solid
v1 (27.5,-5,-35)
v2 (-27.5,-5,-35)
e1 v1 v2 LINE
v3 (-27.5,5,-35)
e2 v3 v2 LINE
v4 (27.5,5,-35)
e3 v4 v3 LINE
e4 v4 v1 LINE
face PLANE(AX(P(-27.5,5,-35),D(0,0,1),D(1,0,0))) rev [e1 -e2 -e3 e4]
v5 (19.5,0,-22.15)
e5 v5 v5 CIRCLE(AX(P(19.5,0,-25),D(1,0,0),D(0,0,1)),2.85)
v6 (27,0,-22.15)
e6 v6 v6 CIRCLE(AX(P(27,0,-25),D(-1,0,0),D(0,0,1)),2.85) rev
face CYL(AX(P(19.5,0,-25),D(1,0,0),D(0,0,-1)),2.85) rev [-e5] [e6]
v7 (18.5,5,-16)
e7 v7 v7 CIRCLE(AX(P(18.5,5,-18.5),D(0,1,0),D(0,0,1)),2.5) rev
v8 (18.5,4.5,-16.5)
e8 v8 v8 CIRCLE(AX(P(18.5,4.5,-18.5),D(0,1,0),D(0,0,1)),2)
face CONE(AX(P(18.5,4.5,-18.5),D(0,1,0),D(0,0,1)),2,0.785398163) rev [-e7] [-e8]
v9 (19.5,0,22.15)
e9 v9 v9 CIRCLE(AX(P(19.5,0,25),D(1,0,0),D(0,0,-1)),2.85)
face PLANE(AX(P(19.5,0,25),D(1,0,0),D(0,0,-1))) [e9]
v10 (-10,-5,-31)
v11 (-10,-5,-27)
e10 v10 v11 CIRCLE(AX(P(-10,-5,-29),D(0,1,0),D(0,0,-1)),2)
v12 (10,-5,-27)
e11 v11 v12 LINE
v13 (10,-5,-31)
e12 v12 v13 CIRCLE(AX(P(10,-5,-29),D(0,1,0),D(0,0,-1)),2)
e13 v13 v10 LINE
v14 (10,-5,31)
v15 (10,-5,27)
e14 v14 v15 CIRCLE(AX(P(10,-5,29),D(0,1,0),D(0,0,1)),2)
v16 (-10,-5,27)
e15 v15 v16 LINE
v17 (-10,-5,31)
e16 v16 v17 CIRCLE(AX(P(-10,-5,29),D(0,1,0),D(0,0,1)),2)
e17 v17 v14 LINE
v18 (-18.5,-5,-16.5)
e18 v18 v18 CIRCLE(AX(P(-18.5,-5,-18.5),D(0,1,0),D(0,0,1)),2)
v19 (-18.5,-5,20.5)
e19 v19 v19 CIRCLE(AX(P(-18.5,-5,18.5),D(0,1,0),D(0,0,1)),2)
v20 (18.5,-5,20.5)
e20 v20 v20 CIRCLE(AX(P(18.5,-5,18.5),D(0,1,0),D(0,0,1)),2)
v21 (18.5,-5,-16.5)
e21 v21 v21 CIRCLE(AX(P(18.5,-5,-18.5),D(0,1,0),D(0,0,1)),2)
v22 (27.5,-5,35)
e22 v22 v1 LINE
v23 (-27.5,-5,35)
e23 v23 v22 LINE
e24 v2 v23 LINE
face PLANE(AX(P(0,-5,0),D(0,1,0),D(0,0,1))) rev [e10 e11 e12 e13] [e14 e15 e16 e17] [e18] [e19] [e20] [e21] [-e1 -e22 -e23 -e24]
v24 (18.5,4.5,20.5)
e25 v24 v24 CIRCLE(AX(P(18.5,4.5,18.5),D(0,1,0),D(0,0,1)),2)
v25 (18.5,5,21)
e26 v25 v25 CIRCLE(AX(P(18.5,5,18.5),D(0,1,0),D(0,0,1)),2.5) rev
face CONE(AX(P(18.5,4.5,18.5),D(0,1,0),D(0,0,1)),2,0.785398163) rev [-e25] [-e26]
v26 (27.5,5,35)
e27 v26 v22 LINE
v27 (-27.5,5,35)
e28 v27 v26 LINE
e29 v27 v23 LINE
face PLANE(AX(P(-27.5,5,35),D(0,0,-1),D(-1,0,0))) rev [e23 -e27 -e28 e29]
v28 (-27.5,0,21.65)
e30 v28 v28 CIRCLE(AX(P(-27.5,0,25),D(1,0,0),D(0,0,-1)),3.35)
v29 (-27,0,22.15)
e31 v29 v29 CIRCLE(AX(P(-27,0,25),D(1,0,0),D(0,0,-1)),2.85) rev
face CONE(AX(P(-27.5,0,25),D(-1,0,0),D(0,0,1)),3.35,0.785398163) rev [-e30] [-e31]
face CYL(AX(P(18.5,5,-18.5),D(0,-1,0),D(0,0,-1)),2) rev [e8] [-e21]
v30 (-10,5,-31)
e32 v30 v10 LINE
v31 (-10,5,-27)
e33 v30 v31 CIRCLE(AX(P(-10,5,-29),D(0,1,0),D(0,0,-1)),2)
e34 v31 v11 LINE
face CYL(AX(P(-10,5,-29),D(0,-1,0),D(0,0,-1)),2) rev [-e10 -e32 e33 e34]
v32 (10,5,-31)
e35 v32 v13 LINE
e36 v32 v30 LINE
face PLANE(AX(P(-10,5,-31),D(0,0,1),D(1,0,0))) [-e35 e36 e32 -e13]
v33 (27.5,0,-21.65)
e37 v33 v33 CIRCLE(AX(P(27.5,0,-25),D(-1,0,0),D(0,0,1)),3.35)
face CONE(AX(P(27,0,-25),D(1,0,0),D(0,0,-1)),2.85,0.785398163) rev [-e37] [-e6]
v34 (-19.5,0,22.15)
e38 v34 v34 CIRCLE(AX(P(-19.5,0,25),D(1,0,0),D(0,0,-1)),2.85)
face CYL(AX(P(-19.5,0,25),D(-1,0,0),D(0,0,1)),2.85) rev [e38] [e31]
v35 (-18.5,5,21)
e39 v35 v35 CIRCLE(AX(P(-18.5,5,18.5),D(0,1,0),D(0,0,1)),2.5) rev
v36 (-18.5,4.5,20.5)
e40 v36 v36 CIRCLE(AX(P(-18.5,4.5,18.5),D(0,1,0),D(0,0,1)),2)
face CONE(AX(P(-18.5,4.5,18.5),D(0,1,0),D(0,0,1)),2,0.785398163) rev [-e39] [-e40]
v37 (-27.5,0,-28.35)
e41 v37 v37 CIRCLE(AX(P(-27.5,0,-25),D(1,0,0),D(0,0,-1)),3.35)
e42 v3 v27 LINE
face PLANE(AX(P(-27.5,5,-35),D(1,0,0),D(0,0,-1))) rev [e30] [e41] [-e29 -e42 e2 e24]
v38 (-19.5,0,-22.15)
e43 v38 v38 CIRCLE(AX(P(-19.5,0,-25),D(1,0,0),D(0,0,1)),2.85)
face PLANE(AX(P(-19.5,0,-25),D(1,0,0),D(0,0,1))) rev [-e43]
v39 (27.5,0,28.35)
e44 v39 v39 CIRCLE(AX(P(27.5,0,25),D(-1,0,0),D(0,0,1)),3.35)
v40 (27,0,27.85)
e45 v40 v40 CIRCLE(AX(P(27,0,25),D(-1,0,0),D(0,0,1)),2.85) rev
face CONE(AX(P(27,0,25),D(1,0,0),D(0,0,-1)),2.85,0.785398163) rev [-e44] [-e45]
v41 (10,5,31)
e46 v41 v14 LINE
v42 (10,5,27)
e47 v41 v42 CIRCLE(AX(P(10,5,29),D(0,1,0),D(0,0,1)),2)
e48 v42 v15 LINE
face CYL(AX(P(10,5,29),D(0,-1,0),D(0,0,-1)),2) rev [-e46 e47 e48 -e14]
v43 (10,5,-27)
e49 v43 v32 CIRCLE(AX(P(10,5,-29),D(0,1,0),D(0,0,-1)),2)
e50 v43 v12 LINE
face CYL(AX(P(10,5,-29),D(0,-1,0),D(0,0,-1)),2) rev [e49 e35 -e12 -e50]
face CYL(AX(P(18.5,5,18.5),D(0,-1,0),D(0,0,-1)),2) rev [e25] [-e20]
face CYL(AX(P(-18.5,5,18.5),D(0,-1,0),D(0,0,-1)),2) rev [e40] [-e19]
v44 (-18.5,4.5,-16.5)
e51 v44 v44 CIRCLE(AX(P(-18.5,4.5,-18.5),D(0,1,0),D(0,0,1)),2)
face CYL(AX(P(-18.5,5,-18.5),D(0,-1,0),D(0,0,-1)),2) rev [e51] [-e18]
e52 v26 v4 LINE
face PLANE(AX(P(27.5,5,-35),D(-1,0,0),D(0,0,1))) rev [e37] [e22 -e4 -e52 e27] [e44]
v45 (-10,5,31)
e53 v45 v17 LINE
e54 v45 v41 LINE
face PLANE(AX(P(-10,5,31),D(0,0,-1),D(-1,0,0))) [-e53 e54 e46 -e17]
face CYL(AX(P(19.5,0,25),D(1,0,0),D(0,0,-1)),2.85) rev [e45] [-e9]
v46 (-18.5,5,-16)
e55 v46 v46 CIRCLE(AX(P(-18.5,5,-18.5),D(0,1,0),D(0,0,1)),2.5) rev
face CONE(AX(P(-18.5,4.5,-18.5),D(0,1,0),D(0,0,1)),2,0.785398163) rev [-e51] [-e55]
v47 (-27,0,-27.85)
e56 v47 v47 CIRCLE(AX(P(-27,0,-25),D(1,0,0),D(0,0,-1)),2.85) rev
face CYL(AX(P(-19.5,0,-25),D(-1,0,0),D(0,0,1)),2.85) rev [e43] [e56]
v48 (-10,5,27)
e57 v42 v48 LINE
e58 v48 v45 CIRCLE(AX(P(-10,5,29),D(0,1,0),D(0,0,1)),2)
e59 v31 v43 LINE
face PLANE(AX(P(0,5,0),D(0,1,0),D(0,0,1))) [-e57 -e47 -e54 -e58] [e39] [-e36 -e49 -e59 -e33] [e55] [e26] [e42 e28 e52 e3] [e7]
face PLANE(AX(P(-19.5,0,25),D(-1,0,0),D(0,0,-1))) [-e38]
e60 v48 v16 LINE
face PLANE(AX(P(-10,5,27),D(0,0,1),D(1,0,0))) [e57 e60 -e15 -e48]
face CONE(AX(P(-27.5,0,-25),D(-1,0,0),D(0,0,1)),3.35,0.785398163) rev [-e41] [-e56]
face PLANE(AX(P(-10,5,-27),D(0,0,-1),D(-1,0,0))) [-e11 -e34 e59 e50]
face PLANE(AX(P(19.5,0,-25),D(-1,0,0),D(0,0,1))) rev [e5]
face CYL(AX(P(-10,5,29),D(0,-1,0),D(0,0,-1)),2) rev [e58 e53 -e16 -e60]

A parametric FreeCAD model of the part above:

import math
import FreeCAD as App
import Part
import Sketcher
from FreeCAD import Vector


def edges_at(feature, points):
    """Names of the edges that pass closest to the given points."""
    edges = feature.Shape.Edges
    near = lambda p: min(range(len(edges)), key=lambda i: edges[i].distToShape(Part.Vertex(*p))[0])
    return sorted({f"Edge{near(p) + 1}" for p in points})


def add_polygon(sketch, points):
    """Adds a closed chain of lines whose ends are joined by coincident constraints."""
    first, n = sketch.GeometryCount, len(points)
    for a, b in zip(points, points[1:] + points[:1]):
        sketch.addGeometry(Part.LineSegment(App.Vector(*a, 0), App.Vector(*b, 0)), False)
    for i in range(n):
        sketch.addConstraint(Sketcher.Constraint("Coincident", first + i, 2, first + (i + 1) % n, 1))

doc = App.newDocument("Part")
body = doc.addObject("PartDesign::Body", "Body")

sketch1 = doc.addObject("Sketcher::SketchObject", "Sketch")
body.addObject(sketch1)
sketch1.AttachmentSupport = (doc.XZ_Plane, [""])
sketch1.MapMode = "FlatFace"
add_polygon(sketch1, [(-27.5, -35), (-27.5, 35), (27.5, 35), (27.5, -35)])
sketch1.addGeometry(Part.Circle(Vector(-18.5, 18.5, 0), Vector(0, 0, 1), 2), False)
sketch1.addGeometry(Part.LineSegment(Vector(10, 31, 0), Vector(-10, 31, 0)), False)
sketch1.addGeometry(Part.ArcOfCircle(Part.Circle(Vector(-10, 29, 0), Vector(0, 0, 1), 2), math.radians(90), math.radians(270)), False)
sketch1.addGeometry(Part.LineSegment(Vector(-10, 27, 0), Vector(10, 27, 0)), False)
sketch1.addGeometry(Part.ArcOfCircle(Part.Circle(Vector(10, 29, 0), Vector(0, 0, 1), 2), math.radians(-90), math.radians(90)), False)
sketch1.addGeometry(Part.Circle(Vector(18.5, 18.5, 0), Vector(0, 0, 1), 2), False)
sketch1.addGeometry(Part.Circle(Vector(-18.5, -18.5, 0), Vector(0, 0, 1), 2), False)
sketch1.addGeometry(Part.LineSegment(Vector(10, -27, 0), Vector(-10, -27, 0)), False)
sketch1.addGeometry(Part.ArcOfCircle(Part.Circle(Vector(-10, -29, 0), Vector(0, 0, 1), 2), math.radians(90), math.radians(270)), False)
sketch1.addGeometry(Part.LineSegment(Vector(-10, -31, 0), Vector(10, -31, 0)), False)
sketch1.addGeometry(Part.ArcOfCircle(Part.Circle(Vector(10, -29, 0), Vector(0, 0, 1), 2), math.radians(-90), math.radians(90)), False)
sketch1.addGeometry(Part.Circle(Vector(18.5, -18.5, 0), Vector(0, 0, 1), 2), False)
sketch1.addConstraint(Sketcher.Constraint("Tangent", 5, 2, 6, 1))
sketch1.addConstraint(Sketcher.Constraint("Tangent", 6, 2, 7, 1))
sketch1.addConstraint(Sketcher.Constraint("Tangent", 7, 2, 8, 1))
sketch1.addConstraint(Sketcher.Constraint("Tangent", 8, 2, 5, 1))
sketch1.addConstraint(Sketcher.Constraint("Tangent", 11, 2, 12, 1))
sketch1.addConstraint(Sketcher.Constraint("Tangent", 12, 2, 13, 1))
sketch1.addConstraint(Sketcher.Constraint("Tangent", 13, 2, 14, 1))
sketch1.addConstraint(Sketcher.Constraint("Tangent", 14, 2, 11, 1))
sketch1.addConstraint(Sketcher.Constraint("Vertical", 0))
sketch1.addConstraint(Sketcher.Constraint("Horizontal", 1))
sketch1.addConstraint(Sketcher.Constraint("Vertical", 2))
sketch1.addConstraint(Sketcher.Constraint("Horizontal", 3))
sketch1.addConstraint(Sketcher.Constraint("Horizontal", 5))
sketch1.addConstraint(Sketcher.Constraint("Horizontal", 7))
sketch1.addConstraint(Sketcher.Constraint("Horizontal", 11))
sketch1.addConstraint(Sketcher.Constraint("Horizontal", 13))
sketch1.addConstraint(Sketcher.Constraint("Equal", 4, 6))
sketch1.addConstraint(Sketcher.Constraint("Equal", 8, 9))
sketch1.addConstraint(Sketcher.Constraint("Equal", 9, 10))
sketch1.addConstraint(Sketcher.Constraint("Equal", 10, 12))
sketch1.addConstraint(Sketcher.Constraint("Equal", 14, 15))
sketch1.addConstraint(Sketcher.Constraint("Symmetric", 9, 3, 10, 3, -1, 1))
sketch1.addConstraint(Sketcher.Constraint("Symmetric", 8, 3, 12, 3, -1, 1))
sketch1.addConstraint(Sketcher.Constraint("Symmetric", 4, 3, 15, 3, -1, 1))
sketch1.addConstraint(Sketcher.Constraint("Symmetric", 0, 2, 2, 2, -1, 1))
sketch1.addConstraint(Sketcher.Constraint("Symmetric", 4, 3, 9, 3, -2))
sketch1.addConstraint(Sketcher.Constraint("Vertical", 6, 3, 12, 3))
sketch1.addConstraint(Sketcher.Constraint("Vertical", 8, 3, 14, 3))
sketch1.addConstraint(Sketcher.Constraint("Diameter", 4, 4.0))
sketch1.addConstraint(Sketcher.Constraint("DistanceX", 1, 1, 1, 2, 55.0))
sketch1.addConstraint(Sketcher.Constraint("DistanceX", 5, 2, 5, 1, 20.0))
sketch1.addConstraint(Sketcher.Constraint("DistanceY", 0, 1, 0, 2, 70.0))
sketch1.addConstraint(Sketcher.Constraint("DistanceY", -1, 1, 6, 3, 29.0))
sketch1.addConstraint(Sketcher.Constraint("DistanceX", 4, 3, 9, 3, 37.0))
sketch1.addConstraint(Sketcher.Constraint("DistanceY", 10, 3, 4, 3, 37.0))
pad1 = doc.addObject("PartDesign::Pad", "Pad")
body.addObject(pad1)
pad1.Profile = sketch1
pad1.Length = 10
pad1.Midplane = True

sketch2 = doc.addObject("Sketcher::SketchObject", "Sketch001")
body.addObject(sketch2)
sketch2.AttachmentSupport = (doc.YZ_Plane, [""])
sketch2.MapMode = "FlatFace"
sketch2.AttachmentOffset = App.Placement(Vector(0, 0, 27.5), App.Rotation())
sketch2.addGeometry(Part.Circle(Vector(0, 25, 0), Vector(0, 0, 1), 2.9), False)
sketch2.addGeometry(Part.Circle(Vector(0, -25, 0), Vector(0, 0, 1), 2.9), False)
sketch2.addConstraint(Sketcher.Constraint("Equal", 0, 1))
sketch2.addConstraint(Sketcher.Constraint("Symmetric", 0, 3, 1, 3, -1, 1))
sketch2.addConstraint(Sketcher.Constraint("PointOnObject", 0, 3, -2))
sketch2.addConstraint(Sketcher.Constraint("Diameter", 0, 5.7))
sketch2.addConstraint(Sketcher.Constraint("DistanceY", -1, 1, 0, 3, 25.0))
pocket1 = doc.addObject("PartDesign::Pocket", "Pocket")
body.addObject(pocket1)
pocket1.Profile = sketch2
pocket1.Length = 8
doc.recompute()

mirrored = doc.addObject("PartDesign::Mirrored", "Mirrored")
body.addObject(mirrored)
mirrored.Originals = [pocket1]
mirrored.MirrorPlane = (doc.YZ_Plane, [""])
body.Tip = mirrored
doc.recompute()

chamfer = doc.addObject("PartDesign::Chamfer", "Chamfer")
body.addObject(chamfer)
chamfer.Base = (mirrored, edges_at(mirrored, [
    (-18.5, 5, 16.5),
    (18.5, 5, -20.5),
    (18.5, 5, 16.5),
    (-18.5, 5, -20.5),
    (27.5, 0, 27.85),
    (27.5, 0, -27.85),
    (-27.5, 0, 27.85),
    (-27.5, 0, -27.85),
]))
chamfer.Size = 0.5

doc.recompute()
